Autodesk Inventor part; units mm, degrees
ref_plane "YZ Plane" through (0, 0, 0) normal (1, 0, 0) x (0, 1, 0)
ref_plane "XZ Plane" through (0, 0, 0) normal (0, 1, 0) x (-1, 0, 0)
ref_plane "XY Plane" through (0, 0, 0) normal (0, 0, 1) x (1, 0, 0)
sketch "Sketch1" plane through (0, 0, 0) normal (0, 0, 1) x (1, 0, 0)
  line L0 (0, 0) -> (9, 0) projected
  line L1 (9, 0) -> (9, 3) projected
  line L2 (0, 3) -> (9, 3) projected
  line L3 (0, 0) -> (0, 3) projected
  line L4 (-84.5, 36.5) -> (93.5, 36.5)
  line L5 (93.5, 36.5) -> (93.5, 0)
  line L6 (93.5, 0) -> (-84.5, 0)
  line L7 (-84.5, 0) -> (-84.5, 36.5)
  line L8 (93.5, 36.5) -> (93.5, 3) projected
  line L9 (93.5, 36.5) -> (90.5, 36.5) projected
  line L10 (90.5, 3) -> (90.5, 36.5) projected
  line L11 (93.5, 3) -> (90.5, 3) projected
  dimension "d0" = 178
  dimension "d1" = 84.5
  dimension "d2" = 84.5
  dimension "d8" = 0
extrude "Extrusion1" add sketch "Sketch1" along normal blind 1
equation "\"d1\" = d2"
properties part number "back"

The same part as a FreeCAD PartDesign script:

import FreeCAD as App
import Part
import Sketcher

V = App.Vector
Q = App.Units.Quantity

doc = App.newDocument("Part")
body = doc.addObject("PartDesign::Body", "Body")

# Sketch on XY plane
sketch1 = body.newObject("Sketcher::SketchObject", "Sketch")
sketch1.AttachmentSupport = (doc.getObject("XY_Plane"), [""])
sketch1.MapMode = "FlatFace"
sketch1.addGeometry(Part.LineSegment(V(94, 0, 0), V(94, 36, 0)), False)
sketch1.addGeometry(Part.LineSegment(V(94, 36, 0), V(-84, 36, 0)), False)
sketch1.addGeometry(Part.LineSegment(V(-84, 36, 0), V(-84, 0, 0)), False)
sketch1.addGeometry(Part.LineSegment(V(-84, 0, 0), V(94, 0, 0)), False)
sketch1.addConstraint(Sketcher.Constraint("Coincident", 0, 2, 1, 1))
sketch1.addConstraint(Sketcher.Constraint("Coincident", 1, 2, 2, 1))
sketch1.addConstraint(Sketcher.Constraint("Coincident", 2, 2, 3, 1))
sketch1.addConstraint(Sketcher.Constraint("Coincident", 3, 2, 0, 1))
sketch1.addConstraint(Sketcher.Constraint("Vertical", 0))
sketch1.addConstraint(Sketcher.Constraint("Horizontal", 1))
sketch1.addConstraint(Sketcher.Constraint("Vertical", 2))
sketch1.addConstraint(Sketcher.Constraint("Horizontal", 3))
sketch1.addConstraint(Sketcher.Constraint("PointOnObject", 2, 2, -1))
sketch1.addConstraint(Sketcher.Constraint("DistanceX", 1, 2, 1, 1, Q("178 mm")))
sketch1.addConstraint(Sketcher.Constraint("DistanceX", 1, 2, -1, 1, Q("84.5 mm")))
sketch1.addConstraint(Sketcher.Constraint("DistanceY", 0, 1, 0, 2, Q("36.5 mm")))
pad1 = body.newObject("PartDesign::Pad", "Pad")
pad1.Profile = sketch1
pad1.Length = 1

doc.recompute()
